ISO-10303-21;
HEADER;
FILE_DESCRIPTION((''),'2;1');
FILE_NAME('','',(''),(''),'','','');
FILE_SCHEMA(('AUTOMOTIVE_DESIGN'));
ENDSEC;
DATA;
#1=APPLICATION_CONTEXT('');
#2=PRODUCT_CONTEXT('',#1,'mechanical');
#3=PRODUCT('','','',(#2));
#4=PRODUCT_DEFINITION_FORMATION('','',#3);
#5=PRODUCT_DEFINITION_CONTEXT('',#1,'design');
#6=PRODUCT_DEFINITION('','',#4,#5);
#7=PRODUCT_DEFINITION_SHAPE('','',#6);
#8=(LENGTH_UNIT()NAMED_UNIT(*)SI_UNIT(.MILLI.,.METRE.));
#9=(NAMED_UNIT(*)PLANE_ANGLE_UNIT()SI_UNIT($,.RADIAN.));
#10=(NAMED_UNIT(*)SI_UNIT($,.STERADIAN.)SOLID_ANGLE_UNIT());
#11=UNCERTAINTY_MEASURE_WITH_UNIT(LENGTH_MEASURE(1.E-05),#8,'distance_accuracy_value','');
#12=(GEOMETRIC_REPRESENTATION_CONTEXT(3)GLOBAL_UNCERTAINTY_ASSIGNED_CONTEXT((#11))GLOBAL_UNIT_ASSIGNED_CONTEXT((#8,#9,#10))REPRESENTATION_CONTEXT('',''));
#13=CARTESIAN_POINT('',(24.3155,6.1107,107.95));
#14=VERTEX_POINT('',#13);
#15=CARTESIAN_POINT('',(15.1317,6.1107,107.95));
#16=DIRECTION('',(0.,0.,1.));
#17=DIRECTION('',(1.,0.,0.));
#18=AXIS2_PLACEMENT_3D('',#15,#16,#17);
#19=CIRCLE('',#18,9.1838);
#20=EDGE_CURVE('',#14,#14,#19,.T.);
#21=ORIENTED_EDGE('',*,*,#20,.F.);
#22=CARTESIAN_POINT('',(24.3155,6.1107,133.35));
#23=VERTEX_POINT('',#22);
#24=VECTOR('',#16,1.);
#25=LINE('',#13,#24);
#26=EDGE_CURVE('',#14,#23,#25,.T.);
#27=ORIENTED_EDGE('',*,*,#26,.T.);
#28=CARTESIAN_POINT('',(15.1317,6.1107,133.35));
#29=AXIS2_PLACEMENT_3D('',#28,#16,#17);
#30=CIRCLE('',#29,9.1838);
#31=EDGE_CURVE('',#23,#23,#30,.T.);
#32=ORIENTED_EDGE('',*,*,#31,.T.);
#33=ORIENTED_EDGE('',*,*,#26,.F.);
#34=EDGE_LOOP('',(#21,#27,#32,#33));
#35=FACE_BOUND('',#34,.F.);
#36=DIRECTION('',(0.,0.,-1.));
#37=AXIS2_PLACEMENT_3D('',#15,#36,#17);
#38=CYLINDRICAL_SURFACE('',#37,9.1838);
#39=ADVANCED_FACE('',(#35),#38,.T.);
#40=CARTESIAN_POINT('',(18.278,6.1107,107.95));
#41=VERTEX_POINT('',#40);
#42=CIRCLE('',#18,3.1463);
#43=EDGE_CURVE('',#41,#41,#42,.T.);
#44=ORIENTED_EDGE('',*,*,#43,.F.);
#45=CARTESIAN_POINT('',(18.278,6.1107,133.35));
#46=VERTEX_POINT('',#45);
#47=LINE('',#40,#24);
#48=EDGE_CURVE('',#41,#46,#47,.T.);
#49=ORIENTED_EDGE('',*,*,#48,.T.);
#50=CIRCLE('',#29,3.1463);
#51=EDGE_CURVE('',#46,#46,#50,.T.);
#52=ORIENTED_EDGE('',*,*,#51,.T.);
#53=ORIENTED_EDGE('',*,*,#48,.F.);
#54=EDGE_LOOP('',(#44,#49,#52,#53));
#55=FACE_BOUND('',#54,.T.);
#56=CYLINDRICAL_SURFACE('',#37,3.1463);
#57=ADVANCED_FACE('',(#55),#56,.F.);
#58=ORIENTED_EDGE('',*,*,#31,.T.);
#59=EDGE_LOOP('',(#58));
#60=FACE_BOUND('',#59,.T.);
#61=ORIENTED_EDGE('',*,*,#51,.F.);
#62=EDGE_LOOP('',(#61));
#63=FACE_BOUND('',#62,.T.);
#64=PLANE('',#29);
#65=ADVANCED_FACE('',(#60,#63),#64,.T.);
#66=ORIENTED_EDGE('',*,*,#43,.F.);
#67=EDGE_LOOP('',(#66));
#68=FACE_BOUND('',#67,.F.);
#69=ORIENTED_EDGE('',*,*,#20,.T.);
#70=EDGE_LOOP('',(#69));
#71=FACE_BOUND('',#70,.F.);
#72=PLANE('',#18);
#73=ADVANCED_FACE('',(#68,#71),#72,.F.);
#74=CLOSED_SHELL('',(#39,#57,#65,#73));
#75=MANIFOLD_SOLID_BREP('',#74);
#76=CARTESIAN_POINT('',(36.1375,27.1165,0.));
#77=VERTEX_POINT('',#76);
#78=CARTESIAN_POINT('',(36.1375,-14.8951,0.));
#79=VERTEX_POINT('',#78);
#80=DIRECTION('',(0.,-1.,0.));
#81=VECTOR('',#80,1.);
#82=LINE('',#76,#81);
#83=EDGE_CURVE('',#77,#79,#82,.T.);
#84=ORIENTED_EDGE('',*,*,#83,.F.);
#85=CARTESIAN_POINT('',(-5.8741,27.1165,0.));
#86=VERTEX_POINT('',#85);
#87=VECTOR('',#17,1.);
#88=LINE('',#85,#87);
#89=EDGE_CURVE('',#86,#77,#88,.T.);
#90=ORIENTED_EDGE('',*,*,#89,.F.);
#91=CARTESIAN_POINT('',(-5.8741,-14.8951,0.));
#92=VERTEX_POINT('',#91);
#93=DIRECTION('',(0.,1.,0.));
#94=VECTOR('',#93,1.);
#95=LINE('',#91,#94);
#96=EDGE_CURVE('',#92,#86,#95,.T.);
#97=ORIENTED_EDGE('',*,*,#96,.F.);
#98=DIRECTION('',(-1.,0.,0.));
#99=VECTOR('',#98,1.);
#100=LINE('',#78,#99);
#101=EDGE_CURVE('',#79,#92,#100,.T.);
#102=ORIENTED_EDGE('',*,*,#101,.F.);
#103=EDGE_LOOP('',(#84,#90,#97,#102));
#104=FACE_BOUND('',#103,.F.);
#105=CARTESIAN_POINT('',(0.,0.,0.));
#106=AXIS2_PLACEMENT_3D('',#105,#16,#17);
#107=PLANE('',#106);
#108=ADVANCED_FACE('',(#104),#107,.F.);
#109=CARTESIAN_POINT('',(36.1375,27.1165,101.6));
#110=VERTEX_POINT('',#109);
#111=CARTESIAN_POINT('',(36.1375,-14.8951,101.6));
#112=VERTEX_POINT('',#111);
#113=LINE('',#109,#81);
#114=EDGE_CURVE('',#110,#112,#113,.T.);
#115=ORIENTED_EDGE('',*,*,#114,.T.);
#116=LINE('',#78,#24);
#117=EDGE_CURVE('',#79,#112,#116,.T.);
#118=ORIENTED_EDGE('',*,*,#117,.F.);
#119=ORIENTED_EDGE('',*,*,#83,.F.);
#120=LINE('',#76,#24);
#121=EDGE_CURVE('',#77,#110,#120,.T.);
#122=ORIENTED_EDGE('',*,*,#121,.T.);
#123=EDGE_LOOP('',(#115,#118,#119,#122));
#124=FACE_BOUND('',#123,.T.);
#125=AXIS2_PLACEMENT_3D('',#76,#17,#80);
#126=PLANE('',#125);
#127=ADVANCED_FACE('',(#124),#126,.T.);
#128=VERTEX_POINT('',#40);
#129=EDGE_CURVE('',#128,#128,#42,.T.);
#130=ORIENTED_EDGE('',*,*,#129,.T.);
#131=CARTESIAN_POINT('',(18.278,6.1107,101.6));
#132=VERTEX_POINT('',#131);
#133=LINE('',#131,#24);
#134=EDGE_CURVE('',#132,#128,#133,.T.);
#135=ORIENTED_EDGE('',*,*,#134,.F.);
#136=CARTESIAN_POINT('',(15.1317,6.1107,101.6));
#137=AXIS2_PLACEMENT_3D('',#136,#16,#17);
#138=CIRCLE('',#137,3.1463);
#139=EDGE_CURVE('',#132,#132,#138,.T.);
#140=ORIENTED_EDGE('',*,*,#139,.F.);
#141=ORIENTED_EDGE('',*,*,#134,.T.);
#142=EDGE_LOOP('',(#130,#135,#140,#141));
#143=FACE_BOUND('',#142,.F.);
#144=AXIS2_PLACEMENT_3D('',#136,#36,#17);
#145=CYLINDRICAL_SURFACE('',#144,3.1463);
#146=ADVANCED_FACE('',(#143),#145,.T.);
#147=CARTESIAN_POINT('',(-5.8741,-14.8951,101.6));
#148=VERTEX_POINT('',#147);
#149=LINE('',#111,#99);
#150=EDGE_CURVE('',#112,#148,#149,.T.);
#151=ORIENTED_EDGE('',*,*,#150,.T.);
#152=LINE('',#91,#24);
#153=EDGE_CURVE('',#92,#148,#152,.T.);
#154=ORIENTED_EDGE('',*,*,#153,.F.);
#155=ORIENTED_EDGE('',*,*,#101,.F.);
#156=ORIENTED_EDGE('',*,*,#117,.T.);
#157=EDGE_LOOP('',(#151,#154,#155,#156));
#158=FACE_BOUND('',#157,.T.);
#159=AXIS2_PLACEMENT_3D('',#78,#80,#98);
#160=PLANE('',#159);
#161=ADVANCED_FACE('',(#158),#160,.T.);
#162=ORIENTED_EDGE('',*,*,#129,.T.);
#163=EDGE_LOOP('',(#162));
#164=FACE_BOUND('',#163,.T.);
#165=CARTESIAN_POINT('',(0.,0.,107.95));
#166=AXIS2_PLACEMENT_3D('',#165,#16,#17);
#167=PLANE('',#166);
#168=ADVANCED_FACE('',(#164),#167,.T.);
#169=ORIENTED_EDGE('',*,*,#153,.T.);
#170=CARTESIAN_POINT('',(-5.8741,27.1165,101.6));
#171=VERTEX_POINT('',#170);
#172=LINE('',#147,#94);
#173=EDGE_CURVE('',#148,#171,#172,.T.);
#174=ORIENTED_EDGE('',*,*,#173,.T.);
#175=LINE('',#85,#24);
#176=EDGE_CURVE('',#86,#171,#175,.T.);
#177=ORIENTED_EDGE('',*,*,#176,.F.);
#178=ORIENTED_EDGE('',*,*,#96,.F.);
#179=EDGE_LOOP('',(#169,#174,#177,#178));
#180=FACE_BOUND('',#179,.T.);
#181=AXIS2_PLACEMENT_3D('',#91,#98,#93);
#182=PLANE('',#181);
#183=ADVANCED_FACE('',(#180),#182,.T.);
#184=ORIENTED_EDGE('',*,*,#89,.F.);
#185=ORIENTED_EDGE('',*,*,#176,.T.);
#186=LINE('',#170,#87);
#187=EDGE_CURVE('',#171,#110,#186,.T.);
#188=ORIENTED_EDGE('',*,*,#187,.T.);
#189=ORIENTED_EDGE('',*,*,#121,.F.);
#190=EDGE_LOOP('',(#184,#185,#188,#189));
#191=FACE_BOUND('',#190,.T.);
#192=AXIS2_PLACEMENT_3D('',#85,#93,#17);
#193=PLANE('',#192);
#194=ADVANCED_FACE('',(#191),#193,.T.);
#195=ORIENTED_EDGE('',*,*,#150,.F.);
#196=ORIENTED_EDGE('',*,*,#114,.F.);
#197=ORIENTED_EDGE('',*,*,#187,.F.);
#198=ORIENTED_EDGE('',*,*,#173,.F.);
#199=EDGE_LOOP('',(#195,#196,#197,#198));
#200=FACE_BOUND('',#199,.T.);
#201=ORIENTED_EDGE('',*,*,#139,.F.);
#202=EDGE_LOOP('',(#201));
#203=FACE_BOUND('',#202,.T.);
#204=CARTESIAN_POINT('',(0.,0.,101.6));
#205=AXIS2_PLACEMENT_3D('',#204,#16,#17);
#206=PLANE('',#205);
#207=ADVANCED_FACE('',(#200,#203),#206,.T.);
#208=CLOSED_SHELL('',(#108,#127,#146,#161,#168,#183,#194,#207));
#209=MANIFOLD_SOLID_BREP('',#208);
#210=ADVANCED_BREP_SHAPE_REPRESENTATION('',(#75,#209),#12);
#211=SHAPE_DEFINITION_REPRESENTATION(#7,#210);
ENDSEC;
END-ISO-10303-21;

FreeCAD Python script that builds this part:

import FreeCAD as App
import Part
import Sketcher

V = App.Vector
Q = App.Units.Quantity


def add_polygon(sketch, points):
    """Adds a closed chain of lines whose ends are joined by coincident constraints."""
    first, n = sketch.GeometryCount, len(points)
    for a, b in zip(points, points[1:] + points[:1]):
        sketch.addGeometry(Part.LineSegment(App.Vector(*a, 0), App.Vector(*b, 0)), False)
    for i in range(n):
        sketch.addConstraint(Sketcher.Constraint("Coincident", first + i, 2, first + (i + 1) % n, 1))

doc = App.newDocument("Part")
params = doc.addObject("Spreadsheet::Sheet", "Params")
for row, (alias, value) in enumerate([
    ("sketch1_width", "1.654 in"),
    ("pad1_length", "4 in"),
    ("pad2_length", "0.25 in"),
    ("pad3_length", "1 in"),
], start=1):
    params.set(f"A{row}", alias)
    params.set(f"B{row}", "=" + value)
    params.setAlias(f"B{row}", alias)

body = doc.addObject("PartDesign::Body", "Body")
body.AllowCompound = True

# Sketch on XY plane
sketch1 = body.newObject("Sketcher::SketchObject", "Sketch")
sketch1.AttachmentSupport = (doc.getObject("XY_Plane"), [""])
sketch1.MapMode = "FlatFace"
add_polygon(sketch1, [(36, 27), (-6, 27), (-6, -15), (36, -15)])  # lines 0-3
sketch1.addConstraint([
    Sketcher.Constraint("Horizontal", 0),
    Sketcher.Constraint("Vertical", 1),
    Sketcher.Constraint("Horizontal", 2),
    Sketcher.Constraint("Vertical", 3),
    Sketcher.Constraint("Equal", 2, 1),
    Sketcher.Constraint("DistanceX", 0, 2, 0, 1, Q("1.654 in")),
    Sketcher.Constraint("DistanceX", 0, 2, -1, 1, 5.874),
    Sketcher.Constraint("DistanceY", -1, 1, 0, 2, 27.1165),
])
sketch1.setExpression("Constraints[9]", "Params.sketch1_width")
pad1 = body.newObject("PartDesign::Pad", "Pad")
pad1.Profile = sketch1
pad1.setExpression("Length", "Params.pad1_length")

# Sketch on XY plane
sketch2 = body.newObject("Sketcher::SketchObject", "Sketch001")
sketch2.AttachmentSupport = (doc.getObject("XY_Plane"), [""])
sketch2.MapMode = "FlatFace"
sketch2.AttachmentOffset = App.Placement(V(0, 0, 4 * 25.4), App.Rotation())
sketch2.addGeometry(Part.Circle(V(15.1, 6.1, 0), V(0, 0, 1), 3.1), False)
sketch2.addConstraint([
    Sketcher.Constraint("Diameter", 0, 6.2926),
    Sketcher.Constraint("DistanceX", -1, 1, 0, 3, 15.1317),
    Sketcher.Constraint("DistanceY", -1, 1, 0, 3, 6.1107),
])
pad2 = body.newObject("PartDesign::Pad", "Pad001")
pad2.Profile = sketch2
pad2.setExpression("Length", "Params.pad2_length")

# Sketch on XY plane
sketch3 = body.newObject("Sketcher::SketchObject", "Sketch002")
sketch3.AttachmentSupport = (doc.getObject("XY_Plane"), [""])
sketch3.MapMode = "FlatFace"
sketch3.AttachmentOffset = App.Placement(V(0, 0, 4.25 * 25.4), App.Rotation())
sketch3.addGeometry([
    Part.Circle(V(15.1, 6.1, 0), V(0, 0, 1), 9.2),
    Part.Circle(V(15.1, 6.1, 0), V(0, 0, 1), 3.1),
], False)
sketch3.addConstraint([
    Sketcher.Constraint("Coincident", 1, 3, 0, 3),
    Sketcher.Constraint("Diameter", 0, 18.3676),
    Sketcher.Constraint("Diameter", 1, 6.2926),
    Sketcher.Constraint("DistanceX", -1, 1, 0, 3, 15.1317),
    Sketcher.Constraint("DistanceY", -1, 1, 0, 3, 6.1107),
])
pad3 = body.newObject("PartDesign::Pad", "Pad002")
pad3.Profile = sketch3
pad3.setExpression("Length", "Params.pad3_length")

doc.recompute()
